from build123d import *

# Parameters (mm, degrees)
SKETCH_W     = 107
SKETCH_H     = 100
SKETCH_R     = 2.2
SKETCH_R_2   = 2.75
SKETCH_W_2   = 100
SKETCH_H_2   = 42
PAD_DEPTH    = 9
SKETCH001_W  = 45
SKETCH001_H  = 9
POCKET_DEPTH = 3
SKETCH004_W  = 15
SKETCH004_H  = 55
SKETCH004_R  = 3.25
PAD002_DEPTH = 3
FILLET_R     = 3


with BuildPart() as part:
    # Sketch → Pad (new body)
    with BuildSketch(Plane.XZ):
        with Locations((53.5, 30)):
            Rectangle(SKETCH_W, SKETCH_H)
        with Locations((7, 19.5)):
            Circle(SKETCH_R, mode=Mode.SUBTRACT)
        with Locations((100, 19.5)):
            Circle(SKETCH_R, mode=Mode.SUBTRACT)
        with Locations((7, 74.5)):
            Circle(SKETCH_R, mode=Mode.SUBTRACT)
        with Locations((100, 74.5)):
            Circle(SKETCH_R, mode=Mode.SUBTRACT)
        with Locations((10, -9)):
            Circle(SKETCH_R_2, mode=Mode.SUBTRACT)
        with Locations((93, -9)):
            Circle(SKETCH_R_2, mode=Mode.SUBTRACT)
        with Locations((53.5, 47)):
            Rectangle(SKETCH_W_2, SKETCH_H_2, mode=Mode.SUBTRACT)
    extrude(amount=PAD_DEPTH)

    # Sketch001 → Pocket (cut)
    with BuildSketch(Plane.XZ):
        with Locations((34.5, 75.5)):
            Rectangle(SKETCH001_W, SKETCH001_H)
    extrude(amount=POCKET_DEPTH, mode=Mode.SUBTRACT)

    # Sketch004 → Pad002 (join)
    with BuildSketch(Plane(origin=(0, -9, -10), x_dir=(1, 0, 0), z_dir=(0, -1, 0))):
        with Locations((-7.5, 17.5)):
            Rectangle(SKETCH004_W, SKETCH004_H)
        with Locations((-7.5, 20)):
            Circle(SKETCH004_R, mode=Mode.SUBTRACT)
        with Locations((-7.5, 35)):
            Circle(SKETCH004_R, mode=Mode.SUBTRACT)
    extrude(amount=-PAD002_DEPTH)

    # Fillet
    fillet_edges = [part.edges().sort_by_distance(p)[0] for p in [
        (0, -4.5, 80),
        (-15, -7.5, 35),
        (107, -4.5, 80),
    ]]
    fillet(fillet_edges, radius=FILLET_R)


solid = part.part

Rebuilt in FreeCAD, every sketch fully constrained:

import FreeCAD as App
import Part
import Sketcher
Q = App.Units.Quantity


def edges_at(feature, points):
    """Names of the edges that pass closest to the given points."""
    edges = feature.Shape.Edges
    near = lambda p: min(range(len(edges)), key=lambda i: edges[i].distToShape(Part.Vertex(*p))[0])
    return sorted({f"Edge{near(p) + 1}" for p in points})


def add_polygon(sketch, points):
    """Adds a closed chain of lines whose ends are joined by coincident constraints."""
    first, n = sketch.GeometryCount, len(points)
    for a, b in zip(points, points[1:] + points[:1]):
        sketch.addGeometry(Part.LineSegment(App.Vector(*a, 0), App.Vector(*b, 0)), False)
    for i in range(n):
        sketch.addConstraint(Sketcher.Constraint("Coincident", first + i, 2, first + (i + 1) % n, 1))

doc = App.newDocument("Part")
body = doc.addObject("PartDesign::Body", "Body")

sketch1 = doc.addObject("Sketcher::SketchObject", "Sketch")
body.addObject(sketch1)
sketch1.AttachmentSupport = (doc.XZ_Plane, [""])
sketch1.MapMode = "FlatFace"
add_polygon(sketch1, [(0, 80), (0, -20), (107, -20), (107, 80)])
sketch1.addGeometry(Part.Circle(App.Vector(10, -9, 0), App.Vector(0, 0, 1), 2.8), False)
sketch1.addGeometry(Part.Circle(App.Vector(7, 19.5, 0), App.Vector(0, 0, 1), 2.2), False)
sketch1.addGeometry(Part.Circle(App.Vector(93, -9, 0), App.Vector(0, 0, 1), 2.8), False)
sketch1.addGeometry(Part.Circle(App.Vector(100, 19.5, 0), App.Vector(0, 0, 1), 2.2), False)
sketch1.addGeometry(Part.Circle(App.Vector(7, 74.5, 0), App.Vector(0, 0, 1), 2.2), False)
add_polygon(sketch1, [(103.5, 26), (3.5, 26), (3.5, 68), (103.5, 68)])
sketch1.addGeometry(Part.Circle(App.Vector(100, 74.5, 0), App.Vector(0, 0, 1), 2.2), False)
sketch1.addConstraint(Sketcher.Constraint("Vertical", 0))
sketch1.addConstraint(Sketcher.Constraint("Horizontal", 1))
sketch1.addConstraint(Sketcher.Constraint("Vertical", 2))
sketch1.addConstraint(Sketcher.Constraint("Horizontal", 3))
sketch1.addConstraint(Sketcher.Constraint("Horizontal", 9))
sketch1.addConstraint(Sketcher.Constraint("Vertical", 10))
sketch1.addConstraint(Sketcher.Constraint("Horizontal", 11))
sketch1.addConstraint(Sketcher.Constraint("Vertical", 12))
sketch1.addConstraint(Sketcher.Constraint("Equal", 4, 6))
sketch1.addConstraint(Sketcher.Constraint("Equal", 5, 7))
sketch1.addConstraint(Sketcher.Constraint("Equal", 7, 8))
sketch1.addConstraint(Sketcher.Constraint("Equal", 8, 13))
sketch1.addConstraint(Sketcher.Constraint("PointOnObject", 0, 2, -2))
sketch1.addConstraint(Sketcher.Constraint("Horizontal", 4, 3, 6, 3))
sketch1.addConstraint(Sketcher.Constraint("Horizontal", 5, 3, 7, 3))
sketch1.addConstraint(Sketcher.Constraint("Horizontal", 8, 3, 13, 3))
sketch1.addConstraint(Sketcher.Constraint("Vertical", 5, 3, 8, 3))
sketch1.addConstraint(Sketcher.Constraint("Vertical", 7, 3, 13, 3))
sketch1.addConstraint(Sketcher.Constraint("Equal", 11, 0))
sketch1.addConstraint(Sketcher.Constraint("Diameter", 4, Q("5.5 mm")))
sketch1.addConstraint(Sketcher.Constraint("Diameter", 5, Q("4.4 mm")))
sketch1.addConstraint(Sketcher.Constraint("DistanceX", 1, 1, 1, 2, Q("107 mm")))
sketch1.addConstraint(Sketcher.Constraint("DistanceX", 9, 2, 9, 1, Q("100 mm")))
sketch1.addConstraint(Sketcher.Constraint("DistanceY", 10, 1, 10, 2, Q("42 mm")))
sketch1.addConstraint(Sketcher.Constraint("DistanceX", -1, 1, 4, 3, Q("10 mm")))
sketch1.addConstraint(Sketcher.Constraint("DistanceY", 4, 3, -1, 1, Q("9 mm")))
sketch1.addConstraint(Sketcher.Constraint("DistanceX", -1, 1, 5, 3, Q("7 mm")))
sketch1.addConstraint(Sketcher.Constraint("DistanceX", -1, 1, 6, 3, Q("93 mm")))
sketch1.addConstraint(Sketcher.Constraint("DistanceX", -1, 1, 7, 3, Q("100 mm")))
sketch1.addConstraint(Sketcher.Constraint("DistanceY", 0, 2, -1, 1, Q("20 mm")))
sketch1.addConstraint(Sketcher.Constraint("DistanceY", -1, 1, 9, 2, Q("26 mm")))
sketch1.addConstraint(Sketcher.Constraint("DistanceY", 5, 3, 8, 3, Q("55 mm")))
sketch1.addConstraint(Sketcher.Constraint("DistanceY", -1, 1, 5, 3, Q("19.5 mm")))
sketch1.addConstraint(Sketcher.Constraint("DistanceX", -1, 1, 9, 2, Q("3.5 mm")))
pad1 = doc.addObject("PartDesign::Pad", "Pad")
body.addObject(pad1)
pad1.Profile = sketch1
pad1.Length = 9

sketch2 = doc.addObject("Sketcher::SketchObject", "Sketch001")
body.addObject(sketch2)
sketch2.AttachmentSupport = (doc.XZ_Plane, [""])
sketch2.MapMode = "FlatFace"
add_polygon(sketch2, [(12, 80), (12, 71), (57, 71), (57, 80)])
sketch2.addConstraint(Sketcher.Constraint("Vertical", 0))
sketch2.addConstraint(Sketcher.Constraint("Horizontal", 1))
sketch2.addConstraint(Sketcher.Constraint("Vertical", 2))
sketch2.addConstraint(Sketcher.Constraint("Horizontal", 3))
sketch2.addConstraint(Sketcher.Constraint("DistanceX", 1, 1, 1, 2, Q("45 mm")))
sketch2.addConstraint(Sketcher.Constraint("DistanceY", 0, 2, 0, 1, Q("9 mm")))
sketch2.addConstraint(Sketcher.Constraint("DistanceX", -1, 1, 0, 2, Q("12 mm")))
sketch2.addConstraint(Sketcher.Constraint("DistanceY", -1, 1, 0, 2, Q("71 mm")))
pocket1 = doc.addObject("PartDesign::Pocket", "Pocket")
body.addObject(pocket1)
pocket1.Profile = sketch2
pocket1.Length = 3
pocket1.Reversed = True

sketch3 = doc.addObject("Sketcher::SketchObject", "Sketch002")
body.addObject(sketch3)
sketch3.AttachmentSupport = (doc.XZ_Plane, [""])
sketch3.MapMode = "FlatFace"
sketch3.AttachmentOffset = App.Placement(App.Vector(0, 0, 9), App.Rotation())
add_polygon(sketch3, [(-15, 35), (-15, -20), (0, -20), (0, 35)])
sketch3.addGeometry(Part.Circle(App.Vector(-7.5, 10, 0), App.Vector(0, 0, 1), 3.2), False)
sketch3.addGeometry(Part.Circle(App.Vector(-7.5, 25, 0), App.Vector(0, 0, 1), 3.2), False)
sketch3.addConstraint(Sketcher.Constraint("Vertical", 0))
sketch3.addConstraint(Sketcher.Constraint("Horizontal", 1))
sketch3.addConstraint(Sketcher.Constraint("Vertical", 2))
sketch3.addConstraint(Sketcher.Constraint("Horizontal", 3))
sketch3.addConstraint(Sketcher.Constraint("Equal", 4, 5))
sketch3.addConstraint(Sketcher.Constraint("PointOnObject", 1, 2, -2))
sketch3.addConstraint(Sketcher.Constraint("Vertical", 4, 3, 5, 3))
sketch3.addConstraint(Sketcher.Constraint("Diameter", 4, Q("6.5 mm")))
sketch3.addConstraint(Sketcher.Constraint("DistanceX", 1, 1, 1, 2, Q("15 mm")))
sketch3.addConstraint(Sketcher.Constraint("DistanceY", 0, 2, 0, 1, Q("55 mm")))
sketch3.addConstraint(Sketcher.Constraint("DistanceY", -1, 1, 4, 3, Q("10 mm")))
sketch3.addConstraint(Sketcher.Constraint("DistanceY", -1, 1, 5, 3, Q("25 mm")))
sketch3.addConstraint(Sketcher.Constraint("DistanceY", 0, 2, -1, 1, Q("20 mm")))
sketch3.addConstraint(Sketcher.Constraint("DistanceX", 4, 3, -1, 1, Q("7.5 mm")))
pad2 = doc.addObject("PartDesign::Pad", "Pad001")
body.addObject(pad2)
pad2.Profile = sketch3
pad2.Length = 3
pad2.Reversed = True
doc.recompute()

fillet = doc.addObject("PartDesign::Fillet", "Fillet")
body.addObject(fillet)
fillet.Base = (pad2, edges_at(pad2, [(0, -4.5, 80), (-15, -7.5, 35), (107, -4.5, 80)]))
fillet.Radius = 3

doc.recompute()
